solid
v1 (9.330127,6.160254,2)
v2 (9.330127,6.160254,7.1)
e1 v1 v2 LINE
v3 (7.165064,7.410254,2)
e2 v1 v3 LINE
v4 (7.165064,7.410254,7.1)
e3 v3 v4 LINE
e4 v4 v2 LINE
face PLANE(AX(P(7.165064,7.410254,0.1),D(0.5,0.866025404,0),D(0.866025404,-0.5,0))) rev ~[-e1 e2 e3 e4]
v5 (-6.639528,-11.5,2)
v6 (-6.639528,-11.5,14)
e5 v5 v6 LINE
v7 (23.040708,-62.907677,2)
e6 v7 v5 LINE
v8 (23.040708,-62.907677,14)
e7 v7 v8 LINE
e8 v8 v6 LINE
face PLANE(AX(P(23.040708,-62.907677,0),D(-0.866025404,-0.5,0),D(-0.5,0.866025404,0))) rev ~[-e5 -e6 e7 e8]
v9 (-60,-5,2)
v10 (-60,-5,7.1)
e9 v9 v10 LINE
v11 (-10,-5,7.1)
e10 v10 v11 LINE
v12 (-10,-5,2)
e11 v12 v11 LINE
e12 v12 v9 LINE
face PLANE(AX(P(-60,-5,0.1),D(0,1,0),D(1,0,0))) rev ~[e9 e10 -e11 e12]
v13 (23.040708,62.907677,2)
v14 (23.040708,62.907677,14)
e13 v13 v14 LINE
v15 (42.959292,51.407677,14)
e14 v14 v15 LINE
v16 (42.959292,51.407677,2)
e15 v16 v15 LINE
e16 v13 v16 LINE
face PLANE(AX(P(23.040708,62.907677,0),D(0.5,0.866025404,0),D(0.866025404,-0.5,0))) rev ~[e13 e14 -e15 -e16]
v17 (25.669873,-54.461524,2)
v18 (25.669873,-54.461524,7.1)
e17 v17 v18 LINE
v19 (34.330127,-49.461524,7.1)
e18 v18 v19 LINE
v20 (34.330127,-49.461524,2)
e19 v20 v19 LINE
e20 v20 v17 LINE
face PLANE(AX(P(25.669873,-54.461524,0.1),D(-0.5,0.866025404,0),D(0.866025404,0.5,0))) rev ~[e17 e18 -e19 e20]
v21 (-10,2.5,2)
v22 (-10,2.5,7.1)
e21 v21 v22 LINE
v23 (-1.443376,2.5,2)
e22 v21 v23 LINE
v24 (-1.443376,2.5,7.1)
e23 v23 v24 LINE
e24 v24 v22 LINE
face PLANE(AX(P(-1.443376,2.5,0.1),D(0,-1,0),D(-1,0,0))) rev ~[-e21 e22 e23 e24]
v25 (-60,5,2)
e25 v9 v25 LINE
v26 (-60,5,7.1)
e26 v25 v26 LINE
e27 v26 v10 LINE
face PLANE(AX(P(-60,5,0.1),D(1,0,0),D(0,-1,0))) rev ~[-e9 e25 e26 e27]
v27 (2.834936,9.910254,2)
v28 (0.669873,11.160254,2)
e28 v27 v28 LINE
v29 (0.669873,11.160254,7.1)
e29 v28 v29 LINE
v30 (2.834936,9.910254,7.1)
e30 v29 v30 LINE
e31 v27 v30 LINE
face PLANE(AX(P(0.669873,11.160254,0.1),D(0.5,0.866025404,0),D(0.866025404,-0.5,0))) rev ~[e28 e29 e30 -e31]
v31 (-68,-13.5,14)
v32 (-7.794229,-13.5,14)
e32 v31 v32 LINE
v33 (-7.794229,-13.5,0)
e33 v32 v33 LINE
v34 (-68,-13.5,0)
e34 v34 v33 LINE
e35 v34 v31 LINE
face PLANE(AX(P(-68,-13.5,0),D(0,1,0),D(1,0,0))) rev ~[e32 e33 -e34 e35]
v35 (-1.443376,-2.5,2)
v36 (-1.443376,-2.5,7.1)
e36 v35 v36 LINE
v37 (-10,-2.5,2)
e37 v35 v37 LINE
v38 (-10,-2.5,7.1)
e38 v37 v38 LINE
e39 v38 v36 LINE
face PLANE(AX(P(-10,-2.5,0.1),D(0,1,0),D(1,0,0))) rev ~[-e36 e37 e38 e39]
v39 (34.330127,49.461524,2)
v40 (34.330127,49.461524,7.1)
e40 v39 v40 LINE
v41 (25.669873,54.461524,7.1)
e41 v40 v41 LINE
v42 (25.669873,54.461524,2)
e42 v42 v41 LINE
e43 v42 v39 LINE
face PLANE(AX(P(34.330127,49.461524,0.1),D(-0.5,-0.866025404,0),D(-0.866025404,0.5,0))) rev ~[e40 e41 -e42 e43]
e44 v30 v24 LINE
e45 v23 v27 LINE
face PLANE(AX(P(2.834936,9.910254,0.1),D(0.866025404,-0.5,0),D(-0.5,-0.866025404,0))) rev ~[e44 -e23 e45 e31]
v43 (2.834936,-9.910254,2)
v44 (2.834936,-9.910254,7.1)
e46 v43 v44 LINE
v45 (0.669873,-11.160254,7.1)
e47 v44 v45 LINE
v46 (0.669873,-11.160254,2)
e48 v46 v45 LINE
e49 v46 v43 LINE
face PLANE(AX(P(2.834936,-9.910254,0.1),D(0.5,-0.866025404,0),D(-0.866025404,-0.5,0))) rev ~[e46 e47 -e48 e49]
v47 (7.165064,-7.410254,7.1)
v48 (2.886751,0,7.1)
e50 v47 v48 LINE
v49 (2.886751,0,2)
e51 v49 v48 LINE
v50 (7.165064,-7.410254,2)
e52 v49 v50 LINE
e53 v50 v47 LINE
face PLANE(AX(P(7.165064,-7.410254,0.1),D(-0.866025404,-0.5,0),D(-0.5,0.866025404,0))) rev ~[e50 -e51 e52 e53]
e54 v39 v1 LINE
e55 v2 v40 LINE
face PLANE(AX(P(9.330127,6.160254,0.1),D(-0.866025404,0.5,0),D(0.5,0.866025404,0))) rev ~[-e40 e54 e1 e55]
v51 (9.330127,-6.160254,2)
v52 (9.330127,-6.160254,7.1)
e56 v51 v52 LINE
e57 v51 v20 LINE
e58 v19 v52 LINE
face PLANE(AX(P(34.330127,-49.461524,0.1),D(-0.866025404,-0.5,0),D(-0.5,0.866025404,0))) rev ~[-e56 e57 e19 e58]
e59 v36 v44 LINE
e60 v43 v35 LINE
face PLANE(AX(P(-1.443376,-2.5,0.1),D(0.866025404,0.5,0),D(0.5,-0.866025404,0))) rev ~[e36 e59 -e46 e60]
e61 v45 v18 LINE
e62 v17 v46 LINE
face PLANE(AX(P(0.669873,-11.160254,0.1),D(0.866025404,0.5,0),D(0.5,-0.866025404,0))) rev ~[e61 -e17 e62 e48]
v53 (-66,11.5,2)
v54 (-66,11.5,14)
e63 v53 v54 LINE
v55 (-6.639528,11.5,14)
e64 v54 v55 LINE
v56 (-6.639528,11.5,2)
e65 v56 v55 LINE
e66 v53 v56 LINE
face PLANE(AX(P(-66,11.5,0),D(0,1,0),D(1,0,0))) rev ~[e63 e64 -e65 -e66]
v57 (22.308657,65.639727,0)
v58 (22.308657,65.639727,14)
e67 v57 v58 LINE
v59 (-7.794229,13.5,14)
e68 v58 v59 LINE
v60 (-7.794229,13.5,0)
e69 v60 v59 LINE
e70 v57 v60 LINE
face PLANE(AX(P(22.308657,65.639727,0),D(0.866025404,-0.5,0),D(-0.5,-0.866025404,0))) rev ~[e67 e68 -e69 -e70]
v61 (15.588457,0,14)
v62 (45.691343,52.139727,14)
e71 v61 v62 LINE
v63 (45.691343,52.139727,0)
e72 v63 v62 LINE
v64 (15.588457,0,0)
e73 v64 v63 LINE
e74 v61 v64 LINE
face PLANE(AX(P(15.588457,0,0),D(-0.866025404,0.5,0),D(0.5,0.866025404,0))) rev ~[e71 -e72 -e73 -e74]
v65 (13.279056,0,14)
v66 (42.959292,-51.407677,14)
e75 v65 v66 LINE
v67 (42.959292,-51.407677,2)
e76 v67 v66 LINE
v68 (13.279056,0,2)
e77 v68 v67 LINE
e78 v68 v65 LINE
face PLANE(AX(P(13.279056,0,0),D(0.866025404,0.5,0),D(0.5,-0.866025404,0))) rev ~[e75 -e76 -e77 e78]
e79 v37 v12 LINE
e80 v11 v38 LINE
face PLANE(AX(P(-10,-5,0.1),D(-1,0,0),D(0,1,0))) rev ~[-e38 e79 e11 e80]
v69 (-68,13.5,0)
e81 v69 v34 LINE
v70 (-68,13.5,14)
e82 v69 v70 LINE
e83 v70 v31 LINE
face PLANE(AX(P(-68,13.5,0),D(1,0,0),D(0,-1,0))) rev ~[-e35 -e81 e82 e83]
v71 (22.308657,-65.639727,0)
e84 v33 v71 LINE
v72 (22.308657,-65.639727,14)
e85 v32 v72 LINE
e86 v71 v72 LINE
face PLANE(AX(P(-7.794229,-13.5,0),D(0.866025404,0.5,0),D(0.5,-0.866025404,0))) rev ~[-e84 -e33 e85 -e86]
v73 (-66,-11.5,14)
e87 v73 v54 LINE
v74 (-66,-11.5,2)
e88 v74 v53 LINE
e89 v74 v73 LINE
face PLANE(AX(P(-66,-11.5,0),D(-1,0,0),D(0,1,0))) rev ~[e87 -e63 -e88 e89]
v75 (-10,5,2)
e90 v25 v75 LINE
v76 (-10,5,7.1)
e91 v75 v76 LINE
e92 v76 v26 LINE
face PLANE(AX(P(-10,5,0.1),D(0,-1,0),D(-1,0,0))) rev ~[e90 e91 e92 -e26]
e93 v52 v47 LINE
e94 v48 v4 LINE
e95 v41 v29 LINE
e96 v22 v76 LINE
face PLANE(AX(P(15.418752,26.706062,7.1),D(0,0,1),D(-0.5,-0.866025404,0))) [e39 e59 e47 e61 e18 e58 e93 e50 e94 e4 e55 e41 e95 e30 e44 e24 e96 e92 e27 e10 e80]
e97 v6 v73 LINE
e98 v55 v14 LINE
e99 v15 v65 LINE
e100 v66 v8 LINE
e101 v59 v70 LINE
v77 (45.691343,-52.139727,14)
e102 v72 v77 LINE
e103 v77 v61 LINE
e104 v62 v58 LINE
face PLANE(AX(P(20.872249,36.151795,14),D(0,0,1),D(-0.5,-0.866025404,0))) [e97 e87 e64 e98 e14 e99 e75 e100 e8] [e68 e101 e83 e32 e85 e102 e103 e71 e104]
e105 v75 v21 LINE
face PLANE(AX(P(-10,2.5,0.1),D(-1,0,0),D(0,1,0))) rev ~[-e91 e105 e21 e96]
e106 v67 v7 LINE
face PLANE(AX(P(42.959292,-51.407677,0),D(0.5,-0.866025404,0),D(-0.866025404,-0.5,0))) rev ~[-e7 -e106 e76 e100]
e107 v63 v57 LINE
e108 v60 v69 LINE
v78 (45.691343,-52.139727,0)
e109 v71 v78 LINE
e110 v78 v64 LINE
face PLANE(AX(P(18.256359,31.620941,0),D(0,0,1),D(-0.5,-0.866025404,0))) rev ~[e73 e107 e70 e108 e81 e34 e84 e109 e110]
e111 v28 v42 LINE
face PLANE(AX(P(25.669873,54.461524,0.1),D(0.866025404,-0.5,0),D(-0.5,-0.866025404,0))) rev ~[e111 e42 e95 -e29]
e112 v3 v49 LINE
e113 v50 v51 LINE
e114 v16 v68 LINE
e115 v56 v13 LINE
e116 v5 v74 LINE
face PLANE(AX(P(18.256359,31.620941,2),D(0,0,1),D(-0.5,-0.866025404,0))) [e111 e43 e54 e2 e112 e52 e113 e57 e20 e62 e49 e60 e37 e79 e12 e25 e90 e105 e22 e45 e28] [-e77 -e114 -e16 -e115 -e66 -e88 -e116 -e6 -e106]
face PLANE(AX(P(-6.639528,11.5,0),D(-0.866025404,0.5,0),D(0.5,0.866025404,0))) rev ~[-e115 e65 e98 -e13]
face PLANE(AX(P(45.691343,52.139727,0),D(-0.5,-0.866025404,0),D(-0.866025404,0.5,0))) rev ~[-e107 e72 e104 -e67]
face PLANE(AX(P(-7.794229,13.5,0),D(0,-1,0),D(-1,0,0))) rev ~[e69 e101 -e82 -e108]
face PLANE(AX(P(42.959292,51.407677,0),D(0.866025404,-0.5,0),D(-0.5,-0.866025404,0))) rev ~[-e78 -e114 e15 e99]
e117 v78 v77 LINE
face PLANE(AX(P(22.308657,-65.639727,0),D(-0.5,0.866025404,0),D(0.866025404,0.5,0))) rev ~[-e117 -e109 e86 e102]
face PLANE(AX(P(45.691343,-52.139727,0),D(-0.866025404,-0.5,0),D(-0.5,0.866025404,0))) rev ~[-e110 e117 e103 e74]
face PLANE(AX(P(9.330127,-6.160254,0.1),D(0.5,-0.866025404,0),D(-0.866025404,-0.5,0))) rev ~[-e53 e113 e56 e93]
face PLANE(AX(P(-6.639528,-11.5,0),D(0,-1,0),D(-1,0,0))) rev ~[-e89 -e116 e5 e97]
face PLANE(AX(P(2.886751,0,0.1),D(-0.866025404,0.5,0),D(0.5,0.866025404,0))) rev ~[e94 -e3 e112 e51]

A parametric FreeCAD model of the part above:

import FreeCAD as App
import Part
import Sketcher
Q = App.Units.Quantity


def add_polygon(sketch, points):
    """Adds a closed chain of lines whose ends are joined by coincident constraints."""
    first, n = sketch.GeometryCount, len(points)
    for a, b in zip(points, points[1:] + points[:1]):
        sketch.addGeometry(Part.LineSegment(App.Vector(*a, 0), App.Vector(*b, 0)), False)
    for i in range(n):
        sketch.addConstraint(Sketcher.Constraint("Coincident", first + i, 2, first + (i + 1) % n, 1))

doc = App.newDocument("Part")
params = doc.addObject("Spreadsheet::Sheet", "Params")
for row, (alias, value) in enumerate([
    ("sketch1_height", "27 mm"),
    ("pad1_length", "2 mm"),
    ("sketch2_width", "50 mm"),
    ("sketch2_height", "10 mm"),
    ("sketch2_height2", "2.5 mm"),
    ("pad2_length", "7 mm"),
    ("sketch3_height", "27 mm"),
    ("sketch3_height2", "23 mm"),
    ("pad3_length", "14 mm"),
], start=1):
    params.set(f"A{row}", alias)
    params.set(f"B{row}", "=" + value)
    params.setAlias(f"B{row}", alias)

body = doc.addObject("PartDesign::Body", "Body")

sketch1 = doc.addObject("Sketcher::SketchObject", "Sketch")
body.addObject(sketch1)
sketch1.AttachmentSupport = (doc.XY_Plane, [""])
sketch1.MapMode = "FlatFace"
add_polygon(sketch1, [(0, 0), (-8, 14), (-68, 14), (-68, -14), (-8, -14)])
sketch1.addConstraint(Sketcher.Constraint("Horizontal", 1))
sketch1.addConstraint(Sketcher.Constraint("Vertical", 2))
sketch1.addConstraint(Sketcher.Constraint("Horizontal", 3))
sketch1.addConstraint(Sketcher.Constraint("Coincident", 4, 2, -1, 1))
sketch1.addConstraint(Sketcher.Constraint("Symmetric", 0, 2, 3, 2, -1))
sketch1.addConstraint(Sketcher.Constraint("DistanceY", 2, 2, 2, 1, 27.0))
sketch1.addConstraint(Sketcher.Constraint("Angle", 0, Q("120 deg")))
sketch1.addConstraint(Sketcher.Constraint("DistanceX", 1, 2, -1, 1, 68.0))
sketch1.setExpression("Constraints[10]", "Params.sketch1_height")
pad1 = doc.addObject("PartDesign::Pad", "Pad")
body.addObject(pad1)
pad1.Profile = sketch1
pad1.setExpression("Length", "Params.pad1_length")
body2 = doc.addObject("PartDesign::Body", "Body001")

sketch2 = doc.addObject("Sketcher::SketchObject", "Sketch001")
body2.addObject(sketch2)
sketch2.AttachmentSupport = (doc.getObject("XY_Plane001"), [""])
sketch2.MapMode = "FlatFace"
sketch2.AttachmentOffset = App.Placement(App.Vector(0, 0, 0.1), App.Rotation())
add_polygon(sketch2, [(0, 0), (-1.4, 2.5), (-10, 2.5), (-10, 5), (-60, 5), (-60, -5), (-10, -5), (-10, -2.5), (-1.4, -2.5)])
sketch2.addConstraint(Sketcher.Constraint("Horizontal", 1))
sketch2.addConstraint(Sketcher.Constraint("Vertical", 2))
sketch2.addConstraint(Sketcher.Constraint("Horizontal", 3))
sketch2.addConstraint(Sketcher.Constraint("Vertical", 4))
sketch2.addConstraint(Sketcher.Constraint("Horizontal", 5))
sketch2.addConstraint(Sketcher.Constraint("Vertical", 6))
sketch2.addConstraint(Sketcher.Constraint("Horizontal", 7))
sketch2.addConstraint(Sketcher.Constraint("Coincident", 8, 2, -1, 1))
sketch2.addConstraint(Sketcher.Constraint("Symmetric", 2, 2, 5, 2, -1))
sketch2.addConstraint(Sketcher.Constraint("Symmetric", 0, 2, 7, 2, -1))
sketch2.addConstraint(Sketcher.Constraint("DistanceX", 3, 2, 3, 1, 50.0))
sketch2.addConstraint(Sketcher.Constraint("DistanceY", 4, 2, 4, 1, 10.0))
sketch2.addConstraint(Sketcher.Constraint("Angle", 0, Q("120 deg")))
sketch2.addConstraint(Sketcher.Constraint("DistanceY", 2, 1, 2, 2, 2.5))
sketch2.addConstraint(Sketcher.Constraint("DistanceX", 1, 2, -1, 1, 10.0))
sketch2.setExpression("Constraints[19]", "Params.sketch2_width")
sketch2.setExpression("Constraints[20]", "Params.sketch2_height")
sketch2.setExpression("Constraints[22]", "Params.sketch2_height2")
pad2 = doc.addObject("PartDesign::Pad", "Pad001")
body2.addObject(pad2)
pad2.Profile = sketch2
pad2.setExpression("Length", "Params.pad2_length")
body3 = doc.addObject("PartDesign::Body", "Body002")

sketch3 = doc.addObject("Sketcher::SketchObject", "Sketch002")
body3.addObject(sketch3)
sketch3.AttachmentSupport = (doc.getObject("XY_Plane002"), [""])
sketch3.MapMode = "FlatFace"
add_polygon(sketch3, [(-6.6, 11.5), (-7.8, 13.5), (-68, 13.5), (-68, -13.5), (-7.8, -13.5), (-6.6, -11.5), (-66, -11.5), (-66, 11.5)])
sketch3.addConstraint(Sketcher.Constraint("Horizontal", 1))
sketch3.addConstraint(Sketcher.Constraint("Vertical", 2))
sketch3.addConstraint(Sketcher.Constraint("Horizontal", 3))
sketch3.addConstraint(Sketcher.Constraint("Horizontal", 5))
sketch3.addConstraint(Sketcher.Constraint("Vertical", 6))
sketch3.addConstraint(Sketcher.Constraint("Horizontal", 7))
sketch3.addConstraint(Sketcher.Constraint("Symmetric", 0, 2, 3, 2, -1))
sketch3.addConstraint(Sketcher.Constraint("Symmetric", 4, 2, 7, 2, -1))
sketch3.addConstraint(Sketcher.Constraint("DistanceY", 2, 2, 2, 1, 27.0))
sketch3.addConstraint(Sketcher.Constraint("DistanceY", 6, 1, 6, 2, 23.0))
sketch3.addConstraint(Sketcher.Constraint("Angle", 0, Q("120 deg")))
sketch3.addConstraint(Sketcher.Constraint("DistanceX", 1, 2, -1, 1, 68.0))
sketch3.addConstraint(Sketcher.Constraint("DistanceX", 5, 2, -1, 1, 66.0))
sketch3.addConstraint(Sketcher.Constraint("DistanceX", 1, 2, 1, 1, 60.205771))
sketch3.setExpression("Constraints[16]", "Params.sketch3_height")
sketch3.setExpression("Constraints[17]", "Params.sketch3_height2")
pad3 = doc.addObject("PartDesign::Pad", "Pad002")
body3.addObject(pad3)
pad3.Profile = sketch3
pad3.setExpression("Length", "Params.pad3_length")
doc.recompute()

boolean = doc.addObject("PartDesign::Boolean", "Boolean")
body3.addObject(boolean)
boolean.Type = "Fuse"
boolean.addObjects([body])
doc.recompute()

boolean2 = doc.addObject("PartDesign::Boolean", "Boolean001")
body3.addObject(boolean2)
boolean2.Type = "Fuse"
boolean2.addObjects([body2])
body4 = doc.addObject("PartDesign::Body", "Body003")
doc.recompute()

body4.BaseFeature = body3
doc.recompute()

body5 = doc.addObject("PartDesign::Body", "Body004")
body5.BaseFeature = body3
body5.Placement = App.Placement(App.Vector(0, 0, 0), App.Rotation(App.Vector(0, 0, 1), 120))
boolean3 = doc.addObject("PartDesign::Boolean", "Boolean002")
body4.addObject(boolean3)
boolean3.Type = "Fuse"
boolean3.addObjects([body5])
doc.recompute()

body3.Placement = App.Placement(App.Vector(0, 0, 0), App.Rotation(App.Vector(0, 0, 1), 240))
boolean4 = doc.addObject("PartDesign::Boolean", "Boolean003")
body4.addObject(boolean4)
boolean4.Type = "Fuse"
boolean4.addObjects([body3])

doc.recompute()
